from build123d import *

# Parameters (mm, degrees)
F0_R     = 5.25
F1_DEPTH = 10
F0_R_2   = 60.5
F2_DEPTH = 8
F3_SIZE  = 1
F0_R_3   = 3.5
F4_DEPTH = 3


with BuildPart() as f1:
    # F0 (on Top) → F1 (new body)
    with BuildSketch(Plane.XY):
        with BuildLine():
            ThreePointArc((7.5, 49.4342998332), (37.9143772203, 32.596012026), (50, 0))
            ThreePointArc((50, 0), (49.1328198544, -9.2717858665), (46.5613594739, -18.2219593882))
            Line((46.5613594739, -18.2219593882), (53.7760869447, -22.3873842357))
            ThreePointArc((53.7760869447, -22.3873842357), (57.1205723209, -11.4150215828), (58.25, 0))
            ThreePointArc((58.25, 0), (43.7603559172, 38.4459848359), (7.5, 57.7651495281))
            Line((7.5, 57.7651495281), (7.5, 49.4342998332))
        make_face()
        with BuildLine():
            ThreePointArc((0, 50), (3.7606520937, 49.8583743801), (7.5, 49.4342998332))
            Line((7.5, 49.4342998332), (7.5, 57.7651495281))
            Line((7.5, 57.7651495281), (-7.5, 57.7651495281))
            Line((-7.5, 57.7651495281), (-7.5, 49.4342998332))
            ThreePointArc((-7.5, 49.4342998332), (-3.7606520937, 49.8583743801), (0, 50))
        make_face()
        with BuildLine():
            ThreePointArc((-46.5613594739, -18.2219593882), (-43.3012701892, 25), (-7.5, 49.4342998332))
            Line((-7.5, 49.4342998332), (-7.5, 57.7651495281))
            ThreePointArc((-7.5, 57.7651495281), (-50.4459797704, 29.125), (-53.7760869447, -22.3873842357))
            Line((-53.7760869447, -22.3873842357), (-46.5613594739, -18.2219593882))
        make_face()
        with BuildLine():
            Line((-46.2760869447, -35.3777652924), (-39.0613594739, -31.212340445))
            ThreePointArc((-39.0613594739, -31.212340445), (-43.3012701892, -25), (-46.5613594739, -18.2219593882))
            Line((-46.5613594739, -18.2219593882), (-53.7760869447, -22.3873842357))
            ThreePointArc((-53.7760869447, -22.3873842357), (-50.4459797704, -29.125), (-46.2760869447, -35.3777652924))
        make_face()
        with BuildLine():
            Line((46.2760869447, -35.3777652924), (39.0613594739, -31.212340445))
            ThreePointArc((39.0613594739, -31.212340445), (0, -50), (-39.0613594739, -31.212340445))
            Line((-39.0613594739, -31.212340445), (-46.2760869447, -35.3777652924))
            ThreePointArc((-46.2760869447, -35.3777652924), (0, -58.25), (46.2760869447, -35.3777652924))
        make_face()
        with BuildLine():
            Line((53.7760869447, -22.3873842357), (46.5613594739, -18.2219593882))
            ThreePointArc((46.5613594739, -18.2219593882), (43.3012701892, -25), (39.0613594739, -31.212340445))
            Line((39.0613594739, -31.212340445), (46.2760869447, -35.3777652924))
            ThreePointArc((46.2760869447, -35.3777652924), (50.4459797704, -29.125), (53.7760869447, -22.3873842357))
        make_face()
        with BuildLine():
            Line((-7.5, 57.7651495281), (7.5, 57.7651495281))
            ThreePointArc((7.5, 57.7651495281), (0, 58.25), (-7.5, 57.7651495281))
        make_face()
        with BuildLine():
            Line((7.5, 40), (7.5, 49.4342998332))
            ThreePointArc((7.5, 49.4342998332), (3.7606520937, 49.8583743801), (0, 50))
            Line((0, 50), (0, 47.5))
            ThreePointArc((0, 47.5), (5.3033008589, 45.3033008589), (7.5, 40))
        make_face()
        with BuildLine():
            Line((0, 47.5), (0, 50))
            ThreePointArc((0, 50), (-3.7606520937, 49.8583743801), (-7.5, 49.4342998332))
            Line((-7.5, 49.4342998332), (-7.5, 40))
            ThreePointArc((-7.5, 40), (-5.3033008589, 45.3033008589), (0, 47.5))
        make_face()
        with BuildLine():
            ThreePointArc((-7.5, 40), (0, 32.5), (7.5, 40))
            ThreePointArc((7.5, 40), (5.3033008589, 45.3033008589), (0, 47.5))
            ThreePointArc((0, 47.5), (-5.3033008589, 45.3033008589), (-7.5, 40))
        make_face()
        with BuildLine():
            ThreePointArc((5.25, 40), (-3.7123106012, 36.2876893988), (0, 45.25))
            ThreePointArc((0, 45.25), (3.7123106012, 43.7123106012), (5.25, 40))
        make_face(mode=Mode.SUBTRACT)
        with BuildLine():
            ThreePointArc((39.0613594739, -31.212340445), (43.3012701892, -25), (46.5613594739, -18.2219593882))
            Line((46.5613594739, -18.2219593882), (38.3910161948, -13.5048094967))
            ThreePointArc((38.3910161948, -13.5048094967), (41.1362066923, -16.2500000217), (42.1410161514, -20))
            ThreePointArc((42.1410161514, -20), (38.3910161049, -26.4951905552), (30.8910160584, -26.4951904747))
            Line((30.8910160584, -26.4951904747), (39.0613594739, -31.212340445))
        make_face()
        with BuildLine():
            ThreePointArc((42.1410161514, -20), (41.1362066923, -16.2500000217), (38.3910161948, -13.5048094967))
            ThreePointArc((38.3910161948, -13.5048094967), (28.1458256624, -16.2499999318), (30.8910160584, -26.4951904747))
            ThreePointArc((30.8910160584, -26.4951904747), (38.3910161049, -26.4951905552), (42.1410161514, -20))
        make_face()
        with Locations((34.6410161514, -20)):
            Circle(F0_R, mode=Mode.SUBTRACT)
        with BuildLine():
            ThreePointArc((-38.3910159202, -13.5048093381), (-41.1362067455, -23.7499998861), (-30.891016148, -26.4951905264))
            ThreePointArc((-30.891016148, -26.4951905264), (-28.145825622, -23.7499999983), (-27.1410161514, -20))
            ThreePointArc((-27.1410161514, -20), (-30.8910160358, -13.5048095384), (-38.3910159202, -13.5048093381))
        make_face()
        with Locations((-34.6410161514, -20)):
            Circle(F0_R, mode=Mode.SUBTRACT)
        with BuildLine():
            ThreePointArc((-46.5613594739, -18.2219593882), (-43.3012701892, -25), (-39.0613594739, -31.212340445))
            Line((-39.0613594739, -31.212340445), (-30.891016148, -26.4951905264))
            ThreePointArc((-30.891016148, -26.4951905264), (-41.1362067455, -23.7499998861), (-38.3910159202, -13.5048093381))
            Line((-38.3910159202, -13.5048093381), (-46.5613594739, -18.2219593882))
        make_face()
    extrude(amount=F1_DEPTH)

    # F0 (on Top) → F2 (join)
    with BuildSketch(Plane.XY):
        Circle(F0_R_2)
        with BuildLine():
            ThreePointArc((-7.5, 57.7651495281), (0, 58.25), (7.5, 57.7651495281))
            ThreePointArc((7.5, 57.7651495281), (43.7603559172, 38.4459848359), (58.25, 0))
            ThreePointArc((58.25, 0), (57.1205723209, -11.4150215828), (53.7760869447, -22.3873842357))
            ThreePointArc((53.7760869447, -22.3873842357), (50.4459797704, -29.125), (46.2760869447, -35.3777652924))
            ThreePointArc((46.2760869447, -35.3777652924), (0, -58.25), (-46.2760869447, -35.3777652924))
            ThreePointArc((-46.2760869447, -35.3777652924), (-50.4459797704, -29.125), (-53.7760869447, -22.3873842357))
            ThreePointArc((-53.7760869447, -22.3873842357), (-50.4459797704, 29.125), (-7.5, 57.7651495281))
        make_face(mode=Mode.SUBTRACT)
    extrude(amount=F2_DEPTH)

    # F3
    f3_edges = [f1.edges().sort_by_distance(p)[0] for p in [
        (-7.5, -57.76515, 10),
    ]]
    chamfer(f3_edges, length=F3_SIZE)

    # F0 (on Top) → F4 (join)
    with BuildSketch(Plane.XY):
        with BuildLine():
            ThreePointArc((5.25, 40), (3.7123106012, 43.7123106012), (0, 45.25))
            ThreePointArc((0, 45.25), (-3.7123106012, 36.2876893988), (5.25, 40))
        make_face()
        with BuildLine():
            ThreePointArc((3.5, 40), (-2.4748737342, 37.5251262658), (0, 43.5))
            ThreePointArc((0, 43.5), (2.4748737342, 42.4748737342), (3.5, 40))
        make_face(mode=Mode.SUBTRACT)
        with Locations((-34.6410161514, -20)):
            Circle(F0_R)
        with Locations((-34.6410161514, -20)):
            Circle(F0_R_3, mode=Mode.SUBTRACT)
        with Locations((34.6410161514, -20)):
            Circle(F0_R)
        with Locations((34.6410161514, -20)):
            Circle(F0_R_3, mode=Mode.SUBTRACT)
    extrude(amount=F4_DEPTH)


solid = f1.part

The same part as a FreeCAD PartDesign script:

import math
import FreeCAD as App
import Part
import Sketcher
Q = App.Units.Quantity


def edges_at(feature, points):
    """Names of the edges that pass closest to the given points."""
    edges = feature.Shape.Edges
    near = lambda p: min(range(len(edges)), key=lambda i: edges[i].distToShape(Part.Vertex(*p))[0])
    return sorted({f"Edge{near(p) + 1}" for p in points})

doc = App.newDocument("Part")
body = doc.addObject("PartDesign::Body", "Body")

sketch1 = doc.addObject("Sketcher::SketchObject", "Sketch")
body.addObject(sketch1)
sketch1.AttachmentSupport = (doc.XY_Plane, [""])
sketch1.MapMode = "FlatFace"
sketch1.addGeometry(Part.ArcOfCircle(Part.Circle(App.Vector(0, 0, 0), App.Vector(0, 0, 1), 58.25), math.radians(-22.602324), math.radians(0)), False)
sketch1.addGeometry(Part.ArcOfCircle(Part.Circle(App.Vector(0, 0, 0), App.Vector(0, 0, 1), 58.25), math.radians(0), math.radians(82.602324)), False)
sketch1.addGeometry(Part.ArcOfCircle(Part.Circle(App.Vector(0, 0, 0), App.Vector(0, 0, 1), 58.25), math.radians(82.602324), math.radians(97.397676)), False)
sketch1.addGeometry(Part.ArcOfCircle(Part.Circle(App.Vector(0, 0, 0), App.Vector(0, 0, 1), 58.25), math.radians(97.397676), math.radians(202.602324)), False)
sketch1.addGeometry(Part.ArcOfCircle(Part.Circle(App.Vector(0, 0, 0), App.Vector(0, 0, 1), 58.25), math.radians(-157.397676), math.radians(-142.602324)), False)
sketch1.addGeometry(Part.ArcOfCircle(Part.Circle(App.Vector(0, 0, 0), App.Vector(0, 0, 1), 58.25), math.radians(-142.602324), math.radians(-37.397676)), False)
sketch1.addGeometry(Part.ArcOfCircle(Part.Circle(App.Vector(0, 0, 0), App.Vector(0, 0, 1), 58.25), math.radians(-37.397676), math.radians(-22.602324)), False)
sketch1.addGeometry(Part.Circle(App.Vector(34.641016, -20, 0), App.Vector(0, 0, 1), 5.25), False)
sketch1.addGeometry(Part.ArcOfCircle(Part.Circle(App.Vector(0, 0, 0), App.Vector(0, 0, 1), 50), math.radians(0), math.radians(81.373073)), False)
sketch1.addGeometry(Part.ArcOfCircle(Part.Circle(App.Vector(0, 0, 0), App.Vector(0, 0, 1), 50), math.radians(-21.373073), math.radians(0)), False)
sketch1.addGeometry(Part.LineSegment(App.Vector(46.561359, -18.221959, 0), App.Vector(38.391016, -13.504809, 0)), False)
sketch1.addGeometry(Part.ArcOfCircle(Part.Circle(App.Vector(34.641016, -20, 0), App.Vector(0, 0, 1), 7.5), math.radians(60), math.radians(239.999999)), False)
sketch1.addGeometry(Part.LineSegment(App.Vector(30.891016, -26.49519, 0), App.Vector(39.061359, -31.21234, 0)), False)
sketch1.addGeometry(Part.ArcOfCircle(Part.Circle(App.Vector(0, 0, 0), App.Vector(0, 0, 1), 50), math.radians(-141.373073), math.radians(-38.626927)), False)
sketch1.addGeometry(Part.LineSegment(App.Vector(-39.061359, -31.21234, 0), App.Vector(-30.891016, -26.495191, 0)), False)
sketch1.addGeometry(Part.ArcOfCircle(Part.Circle(App.Vector(-34.641016, -20, 0), App.Vector(0, 0, 1), 7.5), math.radians(-60), math.radians(0)), False)
sketch1.addGeometry(Part.ArcOfCircle(Part.Circle(App.Vector(-34.641016, -20, 0), App.Vector(0, 0, 1), 7.5), math.radians(0), math.radians(119.999998)), False)
sketch1.addGeometry(Part.LineSegment(App.Vector(-38.391016, -13.504809, 0), App.Vector(-46.561359, -18.221959, 0)), False)
sketch1.addGeometry(Part.ArcOfCircle(Part.Circle(App.Vector(0, 0, 0), App.Vector(0, 0, 1), 50), math.radians(98.626927), math.radians(201.373073)), False)
sketch1.addGeometry(Part.LineSegment(App.Vector(-7.5, 49.4343, 0), App.Vector(-7.5, 40, 0)), False)
sketch1.addGeometry(Part.ArcOfCircle(Part.Circle(App.Vector(0, 40, 0), App.Vector(0, 0, 1), 7.5), math.radians(180), math.radians(360)), False)
sketch1.addGeometry(Part.LineSegment(App.Vector(7.5, 40, 0), App.Vector(7.5, 49.4343, 0)), False)
sketch1.addGeometry(Part.ArcOfCircle(Part.Circle(App.Vector(0, 40, 0), App.Vector(0, 0, 1), 5.25), math.radians(0), math.radians(90)), False)
sketch1.addGeometry(Part.ArcOfCircle(Part.Circle(App.Vector(0, 40, 0), App.Vector(0, 0, 1), 5.25), math.radians(90), math.radians(360)), False)
sketch1.addGeometry(Part.Circle(App.Vector(-34.641016, -20, 0), App.Vector(0, 0, 1), 5.25), False)
sketch1.addConstraint(Sketcher.Constraint("Tangent", 0, 2, 1, 1))
sketch1.addConstraint(Sketcher.Constraint("Tangent", 1, 2, 2, 1))
sketch1.addConstraint(Sketcher.Constraint("Tangent", 2, 2, 3, 1))
sketch1.addConstraint(Sketcher.Constraint("Tangent", 3, 2, 4, 1))
sketch1.addConstraint(Sketcher.Constraint("Tangent", 4, 2, 5, 1))
sketch1.addConstraint(Sketcher.Constraint("Tangent", 5, 2, 6, 1))
sketch1.addConstraint(Sketcher.Constraint("Tangent", 6, 2, 0, 1))
sketch1.addConstraint(Sketcher.Constraint("Tangent", 8, 1, 9, 2))
sketch1.addConstraint(Sketcher.Constraint("Coincident", 9, 1, 10, 1))
sketch1.addConstraint(Sketcher.Constraint("Tangent", 10, 2, 11, 1))
sketch1.addConstraint(Sketcher.Constraint("Tangent", 11, 2, 12, 1))
sketch1.addConstraint(Sketcher.Constraint("Coincident", 12, 2, 13, 2))
sketch1.addConstraint(Sketcher.Constraint("Coincident", 13, 1, 14, 1))
sketch1.addConstraint(Sketcher.Constraint("Tangent", 14, 2, 15, 1))
sketch1.addConstraint(Sketcher.Constraint("Tangent", 15, 2, 16, 1))
sketch1.addConstraint(Sketcher.Constraint("Tangent", 16, 2, 17, 1))
sketch1.addConstraint(Sketcher.Constraint("Coincident", 17, 2, 18, 2))
sketch1.addConstraint(Sketcher.Constraint("Coincident", 18, 1, 19, 1))
sketch1.addConstraint(Sketcher.Constraint("Tangent", 19, 2, 20, 1))
sketch1.addConstraint(Sketcher.Constraint("Tangent", 20, 2, 21, 1))
sketch1.addConstraint(Sketcher.Constraint("Coincident", 21, 2, 8, 2))
sketch1.addConstraint(Sketcher.Constraint("Tangent", 22, 1, 23, 2))
sketch1.addConstraint(Sketcher.Constraint("Coincident", 23, 1, 22, 2))
sketch1.addConstraint(Sketcher.Constraint("Vertical", 19))
sketch1.addConstraint(Sketcher.Constraint("Vertical", 21))
sketch1.addConstraint(Sketcher.Constraint("Coincident", 0, 3, -1, 1))
sketch1.addConstraint(Sketcher.Constraint("Coincident", 2, 3, -1, 1))
sketch1.addConstraint(Sketcher.Constraint("Coincident", 4, 3, -1, 1))
sketch1.addConstraint(Sketcher.Constraint("Coincident", 8, 3, -1, 1))
sketch1.addConstraint(Sketcher.Constraint("Coincident", 13, 3, -1, 1))
sketch1.addConstraint(Sketcher.Constraint("Coincident", 18, 3, -1, 1))
sketch1.addConstraint(Sketcher.Constraint("Coincident", 11, 3, 7, 3))
sketch1.addConstraint(Sketcher.Constraint("Coincident", 22, 3, 20, 3))
sketch1.addConstraint(Sketcher.Constraint("Coincident", 24, 3, 15, 3))
sketch1.addConstraint(Sketcher.Constraint("Equal", 8, 9))
sketch1.addConstraint(Sketcher.Constraint("Equal", 9, 13))
sketch1.addConstraint(Sketcher.Constraint("Equal", 11, 15))
sketch1.addConstraint(Sketcher.Constraint("Equal", 15, 16))
sketch1.addConstraint(Sketcher.Constraint("Equal", 13, 18))
sketch1.addConstraint(Sketcher.Constraint("Equal", 16, 20))
sketch1.addConstraint(Sketcher.Constraint("Equal", 7, 22))
sketch1.addConstraint(Sketcher.Constraint("Equal", 23, 24))
sketch1.addConstraint(Sketcher.Constraint("Symmetric", 7, 3, 15, 3, -2))
sketch1.addConstraint(Sketcher.Constraint("PointOnObject", 20, 3, -2))
sketch1.addConstraint(Sketcher.Constraint("PointOnObject", 0, 2, -1))
sketch1.addConstraint(Sketcher.Constraint("PointOnObject", 8, 1, -1))
sketch1.addConstraint(Sketcher.Constraint("PointOnObject", 23, 1, -2))
sketch1.addConstraint(Sketcher.Constraint("Parallel", 10, 12))
sketch1.addConstraint(Sketcher.Constraint("Parallel", 14, 17))
sketch1.addConstraint(Sketcher.Constraint("Horizontal", 1, 2, 2, 2))
sketch1.addConstraint(Sketcher.Constraint("Horizontal", 4, 2, 5, 2))
sketch1.addConstraint(Sketcher.Constraint("Horizontal", 3, 2, 6, 2))
sketch1.addConstraint(Sketcher.Constraint("Horizontal", 12, 2, 13, 1))
sketch1.addConstraint(Sketcher.Constraint("Horizontal", 24, 3, 15, 2))
sketch1.addConstraint(Sketcher.Constraint("Horizontal", 20, 2, 22, 1))
sketch1.addConstraint(Sketcher.Constraint("Vertical", 2, 2, 18, 1))
sketch1.addConstraint(Sketcher.Constraint("Equal", 10, 12))
sketch1.addConstraint(Sketcher.Constraint("Radius", 8, 50.0))
sketch1.addConstraint(Sketcher.Constraint("Diameter", 7, 10.5))
sketch1.addConstraint(Sketcher.Constraint("Radius", 11, 7.5))
sketch1.addConstraint(Sketcher.Constraint("Angle", 10, Q("150 deg")))
sketch1.addConstraint(Sketcher.Constraint("Radius", 0, 58.25))
sketch1.addConstraint(Sketcher.Constraint("DistanceY", 7, 3, -1, 1, 20.0))
sketch1.addConstraint(Sketcher.Constraint("DistanceY", -1, 1, 20, 3, 40.0))
sketch1.addConstraint(Sketcher.Constraint("DistanceX", 3, 2, 4, 2, 7.5))
sketch1.addConstraint(Sketcher.Constraint("DistanceX", 3, 2, 15, 3, 19.135071))
pad1 = doc.addObject("PartDesign::Pad", "Pad")
body.addObject(pad1)
pad1.Profile = sketch1
pad1.Length = 10

sketch2 = doc.addObject("Sketcher::SketchObject", "Sketch001")
body.addObject(sketch2)
sketch2.AttachmentSupport = (doc.XY_Plane, [""])
sketch2.MapMode = "FlatFace"
sketch2.addGeometry(Part.Circle(App.Vector(0, 0, 0), App.Vector(0, 0, 1), 60.5), False)
sketch2.addGeometry(Part.ArcOfCircle(Part.Circle(App.Vector(0, 0, 0), App.Vector(0, 0, 1), 58.25), math.radians(97.397676), math.radians(202.602324)), False)
sketch2.addGeometry(Part.ArcOfCircle(Part.Circle(App.Vector(0, 0, 0), App.Vector(0, 0, 1), 58.25), math.radians(82.602324), math.radians(97.397676)), False)
sketch2.addGeometry(Part.ArcOfCircle(Part.Circle(App.Vector(0, 0, 0), App.Vector(0, 0, 1), 58.25), math.radians(0), math.radians(82.602324)), False)
sketch2.addGeometry(Part.ArcOfCircle(Part.Circle(App.Vector(0, 0, 0), App.Vector(0, 0, 1), 58.25), math.radians(-22.602324), math.radians(0)), False)
sketch2.addGeometry(Part.ArcOfCircle(Part.Circle(App.Vector(0, 0, 0), App.Vector(0, 0, 1), 58.25), math.radians(-37.397676), math.radians(-22.602324)), False)
sketch2.addGeometry(Part.ArcOfCircle(Part.Circle(App.Vector(0, 0, 0), App.Vector(0, 0, 1), 58.25), math.radians(-142.602324), math.radians(-37.397676)), False)
sketch2.addGeometry(Part.ArcOfCircle(Part.Circle(App.Vector(0, 0, 0), App.Vector(0, 0, 1), 58.25), math.radians(-157.397676), math.radians(-142.602324)), False)
sketch2.addConstraint(Sketcher.Constraint("Tangent", 1, 1, 2, 2))
sketch2.addConstraint(Sketcher.Constraint("Tangent", 2, 1, 3, 2))
sketch2.addConstraint(Sketcher.Constraint("Tangent", 3, 1, 4, 2))
sketch2.addConstraint(Sketcher.Constraint("Tangent", 4, 1, 5, 2))
sketch2.addConstraint(Sketcher.Constraint("Tangent", 5, 1, 6, 2))
sketch2.addConstraint(Sketcher.Constraint("Tangent", 6, 1, 7, 2))
sketch2.addConstraint(Sketcher.Constraint("Tangent", 7, 1, 1, 2))
sketch2.addConstraint(Sketcher.Constraint("Coincident", 0, 3, -1, 1))
sketch2.addConstraint(Sketcher.Constraint("Coincident", 1, 3, -1, 1))
sketch2.addConstraint(Sketcher.Constraint("Coincident", 3, 3, -1, 1))
sketch2.addConstraint(Sketcher.Constraint("Coincident", 5, 3, -1, 1))
sketch2.addConstraint(Sketcher.Constraint("PointOnObject", 3, 1, -1))
sketch2.addConstraint(Sketcher.Constraint("Horizontal", 1, 1, 2, 1))
sketch2.addConstraint(Sketcher.Constraint("Horizontal", 5, 1, 6, 1))
sketch2.addConstraint(Sketcher.Constraint("Horizontal", 4, 1, 7, 1))
sketch2.addConstraint(Sketcher.Constraint("Diameter", 0, 121.0))
sketch2.addConstraint(Sketcher.Constraint("Radius", 1, 58.25))
sketch2.addConstraint(Sketcher.Constraint("DistanceX", 1, 1, 2, 1, 15.0))
sketch2.addConstraint(Sketcher.Constraint("DistanceX", 5, 1, 4, 1, 7.5))
sketch2.addConstraint(Sketcher.Constraint("DistanceY", 5, 1, 4, 1, 12.990381))
pad2 = doc.addObject("PartDesign::Pad", "Pad001")
body.addObject(pad2)
pad2.Profile = sketch2
pad2.Length = 8
doc.recompute()

chamfer = doc.addObject("PartDesign::Chamfer", "Chamfer")
body.addObject(chamfer)
chamfer.Base = (pad2, edges_at(pad2, [(0, -58.25, 10)]))
chamfer.Size = 1

sketch3 = doc.addObject("Sketcher::SketchObject", "Sketch002")
body.addObject(sketch3)
sketch3.AttachmentSupport = (doc.XY_Plane, [""])
sketch3.MapMode = "FlatFace"
sketch3.addGeometry(Part.ArcOfCircle(Part.Circle(App.Vector(0, 40, 0), App.Vector(0, 0, 1), 5.25), math.radians(0), math.radians(90)), False)
sketch3.addGeometry(Part.ArcOfCircle(Part.Circle(App.Vector(0, 40, 0), App.Vector(0, 0, 1), 5.25), math.radians(90), math.radians(360)), False)
sketch3.addGeometry(Part.ArcOfCircle(Part.Circle(App.Vector(0, 40, 0), App.Vector(0, 0, 1), 3.5), math.radians(0), math.radians(90)), False)
sketch3.addGeometry(Part.ArcOfCircle(Part.Circle(App.Vector(0, 40, 0), App.Vector(0, 0, 1), 3.5), math.radians(90), math.radians(360)), False)
sketch3.addGeometry(Part.Circle(App.Vector(-34.641016, -20, 0), App.Vector(0, 0, 1), 5.25), False)
sketch3.addGeometry(Part.Circle(App.Vector(-34.641016, -20, 0), App.Vector(0, 0, 1), 3.5), False)
sketch3.addGeometry(Part.Circle(App.Vector(34.641016, -20, 0), App.Vector(0, 0, 1), 5.25), False)
sketch3.addGeometry(Part.Circle(App.Vector(34.641016, -20, 0), App.Vector(0, 0, 1), 3.5), False)
sketch3.addConstraint(Sketcher.Constraint("Tangent", 0, 1, 1, 2))
sketch3.addConstraint(Sketcher.Constraint("Coincident", 1, 1, 0, 2))
sketch3.addConstraint(Sketcher.Constraint("Tangent", 2, 1, 3, 2))
sketch3.addConstraint(Sketcher.Constraint("Coincident", 3, 1, 2, 2))
sketch3.addConstraint(Sketcher.Constraint("Coincident", 2, 3, 0, 3))
sketch3.addConstraint(Sketcher.Constraint("Coincident", 5, 3, 4, 3))
sketch3.addConstraint(Sketcher.Constraint("Coincident", 7, 3, 6, 3))
sketch3.addConstraint(Sketcher.Constraint("Equal", 1, 4))
sketch3.addConstraint(Sketcher.Constraint("Equal", 3, 5))
sketch3.addConstraint(Sketcher.Constraint("Equal", 4, 6))
sketch3.addConstraint(Sketcher.Constraint("Equal", 5, 7))
sketch3.addConstraint(Sketcher.Constraint("Symmetric", 4, 3, 6, 3, -2))
sketch3.addConstraint(Sketcher.Constraint("PointOnObject", 0, 3, -2))
sketch3.addConstraint(Sketcher.Constraint("PointOnObject", 1, 1, -2))
sketch3.addConstraint(Sketcher.Constraint("PointOnObject", 3, 1, -2))
sketch3.addConstraint(Sketcher.Constraint("Horizontal", 3, 3, 0, 1))
sketch3.addConstraint(Sketcher.Constraint("Horizontal", 0, 1, 2, 1))
sketch3.addConstraint(Sketcher.Constraint("Diameter", 5, 7.0))
sketch3.addConstraint(Sketcher.Constraint("Diameter", 4, 10.5))
sketch3.addConstraint(Sketcher.Constraint("DistanceY", -1, 1, 0, 3, 40.0))
sketch3.addConstraint(Sketcher.Constraint("DistanceY", 4, 3, -1, 1, 20.0))
sketch3.addConstraint(Sketcher.Constraint("DistanceX", 4, 3, -1, 1, 34.641016))
pad3 = doc.addObject("PartDesign::Pad", "Pad002")
body.addObject(pad3)
pad3.Profile = sketch3
pad3.Length = 3

doc.recompute()
